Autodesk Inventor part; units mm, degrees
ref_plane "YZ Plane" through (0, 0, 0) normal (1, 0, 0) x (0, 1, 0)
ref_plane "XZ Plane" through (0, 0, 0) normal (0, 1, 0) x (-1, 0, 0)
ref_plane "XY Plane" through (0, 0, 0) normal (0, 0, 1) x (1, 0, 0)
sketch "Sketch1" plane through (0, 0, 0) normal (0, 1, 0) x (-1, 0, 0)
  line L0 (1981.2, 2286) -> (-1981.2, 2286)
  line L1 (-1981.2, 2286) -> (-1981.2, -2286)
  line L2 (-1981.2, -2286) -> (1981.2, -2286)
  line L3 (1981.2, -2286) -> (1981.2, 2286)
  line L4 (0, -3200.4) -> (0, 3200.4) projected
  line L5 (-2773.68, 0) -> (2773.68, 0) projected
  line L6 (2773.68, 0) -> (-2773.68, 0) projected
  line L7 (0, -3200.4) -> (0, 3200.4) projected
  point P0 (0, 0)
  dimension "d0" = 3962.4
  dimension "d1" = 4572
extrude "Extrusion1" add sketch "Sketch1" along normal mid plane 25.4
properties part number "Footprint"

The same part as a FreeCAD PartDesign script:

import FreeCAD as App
import Part
import Sketcher
from FreeCAD import Vector
Q = App.Units.Quantity

doc = App.newDocument("Part")
body = doc.addObject("PartDesign::Body", "Body")

sketch1 = doc.addObject("Sketcher::SketchObject", "Sketch")
body.addObject(sketch1)
sketch1.AttachmentSupport = (doc.XZ_Plane, [""])
sketch1.MapMode = "FlatFace"
sketch1.addGeometry(Part.LineSegment(Vector(-1981, 2286, 0), Vector(1981, 2286, 0)), False)
sketch1.addGeometry(Part.LineSegment(Vector(1981, 2286, 0), Vector(1981, -2286, 0)), False)
sketch1.addGeometry(Part.LineSegment(Vector(1981, -2286, 0), Vector(-1981, -2286, 0)), False)
sketch1.addGeometry(Part.LineSegment(Vector(-1981, -2286, 0), Vector(-1981, 2286, 0)), False)
sketch1.addConstraint(Sketcher.Constraint("Coincident", 0, 2, 1, 1))
sketch1.addConstraint(Sketcher.Constraint("Coincident", 1, 2, 2, 1))
sketch1.addConstraint(Sketcher.Constraint("Coincident", 2, 2, 3, 1))
sketch1.addConstraint(Sketcher.Constraint("Coincident", 3, 2, 0, 1))
sketch1.addConstraint(Sketcher.Constraint("Horizontal", 0))
sketch1.addConstraint(Sketcher.Constraint("Vertical", 1))
sketch1.addConstraint(Sketcher.Constraint("Horizontal", 2))
sketch1.addConstraint(Sketcher.Constraint("Vertical", 3))
sketch1.addConstraint(Sketcher.Constraint("Symmetric", 0, 2, 2, 2, -1, 1))
sketch1.addConstraint(Sketcher.Constraint("DistanceX", 0, 1, 0, 2, Q("156 in")))
sketch1.addConstraint(Sketcher.Constraint("DistanceY", 1, 2, 1, 1, Q("180 in")))
pad1 = doc.addObject("PartDesign::Pad", "Pad")
body.addObject(pad1)
pad1.Profile = sketch1
pad1.Length = Q("1 in")
pad1.Midplane = True

doc.recompute()
